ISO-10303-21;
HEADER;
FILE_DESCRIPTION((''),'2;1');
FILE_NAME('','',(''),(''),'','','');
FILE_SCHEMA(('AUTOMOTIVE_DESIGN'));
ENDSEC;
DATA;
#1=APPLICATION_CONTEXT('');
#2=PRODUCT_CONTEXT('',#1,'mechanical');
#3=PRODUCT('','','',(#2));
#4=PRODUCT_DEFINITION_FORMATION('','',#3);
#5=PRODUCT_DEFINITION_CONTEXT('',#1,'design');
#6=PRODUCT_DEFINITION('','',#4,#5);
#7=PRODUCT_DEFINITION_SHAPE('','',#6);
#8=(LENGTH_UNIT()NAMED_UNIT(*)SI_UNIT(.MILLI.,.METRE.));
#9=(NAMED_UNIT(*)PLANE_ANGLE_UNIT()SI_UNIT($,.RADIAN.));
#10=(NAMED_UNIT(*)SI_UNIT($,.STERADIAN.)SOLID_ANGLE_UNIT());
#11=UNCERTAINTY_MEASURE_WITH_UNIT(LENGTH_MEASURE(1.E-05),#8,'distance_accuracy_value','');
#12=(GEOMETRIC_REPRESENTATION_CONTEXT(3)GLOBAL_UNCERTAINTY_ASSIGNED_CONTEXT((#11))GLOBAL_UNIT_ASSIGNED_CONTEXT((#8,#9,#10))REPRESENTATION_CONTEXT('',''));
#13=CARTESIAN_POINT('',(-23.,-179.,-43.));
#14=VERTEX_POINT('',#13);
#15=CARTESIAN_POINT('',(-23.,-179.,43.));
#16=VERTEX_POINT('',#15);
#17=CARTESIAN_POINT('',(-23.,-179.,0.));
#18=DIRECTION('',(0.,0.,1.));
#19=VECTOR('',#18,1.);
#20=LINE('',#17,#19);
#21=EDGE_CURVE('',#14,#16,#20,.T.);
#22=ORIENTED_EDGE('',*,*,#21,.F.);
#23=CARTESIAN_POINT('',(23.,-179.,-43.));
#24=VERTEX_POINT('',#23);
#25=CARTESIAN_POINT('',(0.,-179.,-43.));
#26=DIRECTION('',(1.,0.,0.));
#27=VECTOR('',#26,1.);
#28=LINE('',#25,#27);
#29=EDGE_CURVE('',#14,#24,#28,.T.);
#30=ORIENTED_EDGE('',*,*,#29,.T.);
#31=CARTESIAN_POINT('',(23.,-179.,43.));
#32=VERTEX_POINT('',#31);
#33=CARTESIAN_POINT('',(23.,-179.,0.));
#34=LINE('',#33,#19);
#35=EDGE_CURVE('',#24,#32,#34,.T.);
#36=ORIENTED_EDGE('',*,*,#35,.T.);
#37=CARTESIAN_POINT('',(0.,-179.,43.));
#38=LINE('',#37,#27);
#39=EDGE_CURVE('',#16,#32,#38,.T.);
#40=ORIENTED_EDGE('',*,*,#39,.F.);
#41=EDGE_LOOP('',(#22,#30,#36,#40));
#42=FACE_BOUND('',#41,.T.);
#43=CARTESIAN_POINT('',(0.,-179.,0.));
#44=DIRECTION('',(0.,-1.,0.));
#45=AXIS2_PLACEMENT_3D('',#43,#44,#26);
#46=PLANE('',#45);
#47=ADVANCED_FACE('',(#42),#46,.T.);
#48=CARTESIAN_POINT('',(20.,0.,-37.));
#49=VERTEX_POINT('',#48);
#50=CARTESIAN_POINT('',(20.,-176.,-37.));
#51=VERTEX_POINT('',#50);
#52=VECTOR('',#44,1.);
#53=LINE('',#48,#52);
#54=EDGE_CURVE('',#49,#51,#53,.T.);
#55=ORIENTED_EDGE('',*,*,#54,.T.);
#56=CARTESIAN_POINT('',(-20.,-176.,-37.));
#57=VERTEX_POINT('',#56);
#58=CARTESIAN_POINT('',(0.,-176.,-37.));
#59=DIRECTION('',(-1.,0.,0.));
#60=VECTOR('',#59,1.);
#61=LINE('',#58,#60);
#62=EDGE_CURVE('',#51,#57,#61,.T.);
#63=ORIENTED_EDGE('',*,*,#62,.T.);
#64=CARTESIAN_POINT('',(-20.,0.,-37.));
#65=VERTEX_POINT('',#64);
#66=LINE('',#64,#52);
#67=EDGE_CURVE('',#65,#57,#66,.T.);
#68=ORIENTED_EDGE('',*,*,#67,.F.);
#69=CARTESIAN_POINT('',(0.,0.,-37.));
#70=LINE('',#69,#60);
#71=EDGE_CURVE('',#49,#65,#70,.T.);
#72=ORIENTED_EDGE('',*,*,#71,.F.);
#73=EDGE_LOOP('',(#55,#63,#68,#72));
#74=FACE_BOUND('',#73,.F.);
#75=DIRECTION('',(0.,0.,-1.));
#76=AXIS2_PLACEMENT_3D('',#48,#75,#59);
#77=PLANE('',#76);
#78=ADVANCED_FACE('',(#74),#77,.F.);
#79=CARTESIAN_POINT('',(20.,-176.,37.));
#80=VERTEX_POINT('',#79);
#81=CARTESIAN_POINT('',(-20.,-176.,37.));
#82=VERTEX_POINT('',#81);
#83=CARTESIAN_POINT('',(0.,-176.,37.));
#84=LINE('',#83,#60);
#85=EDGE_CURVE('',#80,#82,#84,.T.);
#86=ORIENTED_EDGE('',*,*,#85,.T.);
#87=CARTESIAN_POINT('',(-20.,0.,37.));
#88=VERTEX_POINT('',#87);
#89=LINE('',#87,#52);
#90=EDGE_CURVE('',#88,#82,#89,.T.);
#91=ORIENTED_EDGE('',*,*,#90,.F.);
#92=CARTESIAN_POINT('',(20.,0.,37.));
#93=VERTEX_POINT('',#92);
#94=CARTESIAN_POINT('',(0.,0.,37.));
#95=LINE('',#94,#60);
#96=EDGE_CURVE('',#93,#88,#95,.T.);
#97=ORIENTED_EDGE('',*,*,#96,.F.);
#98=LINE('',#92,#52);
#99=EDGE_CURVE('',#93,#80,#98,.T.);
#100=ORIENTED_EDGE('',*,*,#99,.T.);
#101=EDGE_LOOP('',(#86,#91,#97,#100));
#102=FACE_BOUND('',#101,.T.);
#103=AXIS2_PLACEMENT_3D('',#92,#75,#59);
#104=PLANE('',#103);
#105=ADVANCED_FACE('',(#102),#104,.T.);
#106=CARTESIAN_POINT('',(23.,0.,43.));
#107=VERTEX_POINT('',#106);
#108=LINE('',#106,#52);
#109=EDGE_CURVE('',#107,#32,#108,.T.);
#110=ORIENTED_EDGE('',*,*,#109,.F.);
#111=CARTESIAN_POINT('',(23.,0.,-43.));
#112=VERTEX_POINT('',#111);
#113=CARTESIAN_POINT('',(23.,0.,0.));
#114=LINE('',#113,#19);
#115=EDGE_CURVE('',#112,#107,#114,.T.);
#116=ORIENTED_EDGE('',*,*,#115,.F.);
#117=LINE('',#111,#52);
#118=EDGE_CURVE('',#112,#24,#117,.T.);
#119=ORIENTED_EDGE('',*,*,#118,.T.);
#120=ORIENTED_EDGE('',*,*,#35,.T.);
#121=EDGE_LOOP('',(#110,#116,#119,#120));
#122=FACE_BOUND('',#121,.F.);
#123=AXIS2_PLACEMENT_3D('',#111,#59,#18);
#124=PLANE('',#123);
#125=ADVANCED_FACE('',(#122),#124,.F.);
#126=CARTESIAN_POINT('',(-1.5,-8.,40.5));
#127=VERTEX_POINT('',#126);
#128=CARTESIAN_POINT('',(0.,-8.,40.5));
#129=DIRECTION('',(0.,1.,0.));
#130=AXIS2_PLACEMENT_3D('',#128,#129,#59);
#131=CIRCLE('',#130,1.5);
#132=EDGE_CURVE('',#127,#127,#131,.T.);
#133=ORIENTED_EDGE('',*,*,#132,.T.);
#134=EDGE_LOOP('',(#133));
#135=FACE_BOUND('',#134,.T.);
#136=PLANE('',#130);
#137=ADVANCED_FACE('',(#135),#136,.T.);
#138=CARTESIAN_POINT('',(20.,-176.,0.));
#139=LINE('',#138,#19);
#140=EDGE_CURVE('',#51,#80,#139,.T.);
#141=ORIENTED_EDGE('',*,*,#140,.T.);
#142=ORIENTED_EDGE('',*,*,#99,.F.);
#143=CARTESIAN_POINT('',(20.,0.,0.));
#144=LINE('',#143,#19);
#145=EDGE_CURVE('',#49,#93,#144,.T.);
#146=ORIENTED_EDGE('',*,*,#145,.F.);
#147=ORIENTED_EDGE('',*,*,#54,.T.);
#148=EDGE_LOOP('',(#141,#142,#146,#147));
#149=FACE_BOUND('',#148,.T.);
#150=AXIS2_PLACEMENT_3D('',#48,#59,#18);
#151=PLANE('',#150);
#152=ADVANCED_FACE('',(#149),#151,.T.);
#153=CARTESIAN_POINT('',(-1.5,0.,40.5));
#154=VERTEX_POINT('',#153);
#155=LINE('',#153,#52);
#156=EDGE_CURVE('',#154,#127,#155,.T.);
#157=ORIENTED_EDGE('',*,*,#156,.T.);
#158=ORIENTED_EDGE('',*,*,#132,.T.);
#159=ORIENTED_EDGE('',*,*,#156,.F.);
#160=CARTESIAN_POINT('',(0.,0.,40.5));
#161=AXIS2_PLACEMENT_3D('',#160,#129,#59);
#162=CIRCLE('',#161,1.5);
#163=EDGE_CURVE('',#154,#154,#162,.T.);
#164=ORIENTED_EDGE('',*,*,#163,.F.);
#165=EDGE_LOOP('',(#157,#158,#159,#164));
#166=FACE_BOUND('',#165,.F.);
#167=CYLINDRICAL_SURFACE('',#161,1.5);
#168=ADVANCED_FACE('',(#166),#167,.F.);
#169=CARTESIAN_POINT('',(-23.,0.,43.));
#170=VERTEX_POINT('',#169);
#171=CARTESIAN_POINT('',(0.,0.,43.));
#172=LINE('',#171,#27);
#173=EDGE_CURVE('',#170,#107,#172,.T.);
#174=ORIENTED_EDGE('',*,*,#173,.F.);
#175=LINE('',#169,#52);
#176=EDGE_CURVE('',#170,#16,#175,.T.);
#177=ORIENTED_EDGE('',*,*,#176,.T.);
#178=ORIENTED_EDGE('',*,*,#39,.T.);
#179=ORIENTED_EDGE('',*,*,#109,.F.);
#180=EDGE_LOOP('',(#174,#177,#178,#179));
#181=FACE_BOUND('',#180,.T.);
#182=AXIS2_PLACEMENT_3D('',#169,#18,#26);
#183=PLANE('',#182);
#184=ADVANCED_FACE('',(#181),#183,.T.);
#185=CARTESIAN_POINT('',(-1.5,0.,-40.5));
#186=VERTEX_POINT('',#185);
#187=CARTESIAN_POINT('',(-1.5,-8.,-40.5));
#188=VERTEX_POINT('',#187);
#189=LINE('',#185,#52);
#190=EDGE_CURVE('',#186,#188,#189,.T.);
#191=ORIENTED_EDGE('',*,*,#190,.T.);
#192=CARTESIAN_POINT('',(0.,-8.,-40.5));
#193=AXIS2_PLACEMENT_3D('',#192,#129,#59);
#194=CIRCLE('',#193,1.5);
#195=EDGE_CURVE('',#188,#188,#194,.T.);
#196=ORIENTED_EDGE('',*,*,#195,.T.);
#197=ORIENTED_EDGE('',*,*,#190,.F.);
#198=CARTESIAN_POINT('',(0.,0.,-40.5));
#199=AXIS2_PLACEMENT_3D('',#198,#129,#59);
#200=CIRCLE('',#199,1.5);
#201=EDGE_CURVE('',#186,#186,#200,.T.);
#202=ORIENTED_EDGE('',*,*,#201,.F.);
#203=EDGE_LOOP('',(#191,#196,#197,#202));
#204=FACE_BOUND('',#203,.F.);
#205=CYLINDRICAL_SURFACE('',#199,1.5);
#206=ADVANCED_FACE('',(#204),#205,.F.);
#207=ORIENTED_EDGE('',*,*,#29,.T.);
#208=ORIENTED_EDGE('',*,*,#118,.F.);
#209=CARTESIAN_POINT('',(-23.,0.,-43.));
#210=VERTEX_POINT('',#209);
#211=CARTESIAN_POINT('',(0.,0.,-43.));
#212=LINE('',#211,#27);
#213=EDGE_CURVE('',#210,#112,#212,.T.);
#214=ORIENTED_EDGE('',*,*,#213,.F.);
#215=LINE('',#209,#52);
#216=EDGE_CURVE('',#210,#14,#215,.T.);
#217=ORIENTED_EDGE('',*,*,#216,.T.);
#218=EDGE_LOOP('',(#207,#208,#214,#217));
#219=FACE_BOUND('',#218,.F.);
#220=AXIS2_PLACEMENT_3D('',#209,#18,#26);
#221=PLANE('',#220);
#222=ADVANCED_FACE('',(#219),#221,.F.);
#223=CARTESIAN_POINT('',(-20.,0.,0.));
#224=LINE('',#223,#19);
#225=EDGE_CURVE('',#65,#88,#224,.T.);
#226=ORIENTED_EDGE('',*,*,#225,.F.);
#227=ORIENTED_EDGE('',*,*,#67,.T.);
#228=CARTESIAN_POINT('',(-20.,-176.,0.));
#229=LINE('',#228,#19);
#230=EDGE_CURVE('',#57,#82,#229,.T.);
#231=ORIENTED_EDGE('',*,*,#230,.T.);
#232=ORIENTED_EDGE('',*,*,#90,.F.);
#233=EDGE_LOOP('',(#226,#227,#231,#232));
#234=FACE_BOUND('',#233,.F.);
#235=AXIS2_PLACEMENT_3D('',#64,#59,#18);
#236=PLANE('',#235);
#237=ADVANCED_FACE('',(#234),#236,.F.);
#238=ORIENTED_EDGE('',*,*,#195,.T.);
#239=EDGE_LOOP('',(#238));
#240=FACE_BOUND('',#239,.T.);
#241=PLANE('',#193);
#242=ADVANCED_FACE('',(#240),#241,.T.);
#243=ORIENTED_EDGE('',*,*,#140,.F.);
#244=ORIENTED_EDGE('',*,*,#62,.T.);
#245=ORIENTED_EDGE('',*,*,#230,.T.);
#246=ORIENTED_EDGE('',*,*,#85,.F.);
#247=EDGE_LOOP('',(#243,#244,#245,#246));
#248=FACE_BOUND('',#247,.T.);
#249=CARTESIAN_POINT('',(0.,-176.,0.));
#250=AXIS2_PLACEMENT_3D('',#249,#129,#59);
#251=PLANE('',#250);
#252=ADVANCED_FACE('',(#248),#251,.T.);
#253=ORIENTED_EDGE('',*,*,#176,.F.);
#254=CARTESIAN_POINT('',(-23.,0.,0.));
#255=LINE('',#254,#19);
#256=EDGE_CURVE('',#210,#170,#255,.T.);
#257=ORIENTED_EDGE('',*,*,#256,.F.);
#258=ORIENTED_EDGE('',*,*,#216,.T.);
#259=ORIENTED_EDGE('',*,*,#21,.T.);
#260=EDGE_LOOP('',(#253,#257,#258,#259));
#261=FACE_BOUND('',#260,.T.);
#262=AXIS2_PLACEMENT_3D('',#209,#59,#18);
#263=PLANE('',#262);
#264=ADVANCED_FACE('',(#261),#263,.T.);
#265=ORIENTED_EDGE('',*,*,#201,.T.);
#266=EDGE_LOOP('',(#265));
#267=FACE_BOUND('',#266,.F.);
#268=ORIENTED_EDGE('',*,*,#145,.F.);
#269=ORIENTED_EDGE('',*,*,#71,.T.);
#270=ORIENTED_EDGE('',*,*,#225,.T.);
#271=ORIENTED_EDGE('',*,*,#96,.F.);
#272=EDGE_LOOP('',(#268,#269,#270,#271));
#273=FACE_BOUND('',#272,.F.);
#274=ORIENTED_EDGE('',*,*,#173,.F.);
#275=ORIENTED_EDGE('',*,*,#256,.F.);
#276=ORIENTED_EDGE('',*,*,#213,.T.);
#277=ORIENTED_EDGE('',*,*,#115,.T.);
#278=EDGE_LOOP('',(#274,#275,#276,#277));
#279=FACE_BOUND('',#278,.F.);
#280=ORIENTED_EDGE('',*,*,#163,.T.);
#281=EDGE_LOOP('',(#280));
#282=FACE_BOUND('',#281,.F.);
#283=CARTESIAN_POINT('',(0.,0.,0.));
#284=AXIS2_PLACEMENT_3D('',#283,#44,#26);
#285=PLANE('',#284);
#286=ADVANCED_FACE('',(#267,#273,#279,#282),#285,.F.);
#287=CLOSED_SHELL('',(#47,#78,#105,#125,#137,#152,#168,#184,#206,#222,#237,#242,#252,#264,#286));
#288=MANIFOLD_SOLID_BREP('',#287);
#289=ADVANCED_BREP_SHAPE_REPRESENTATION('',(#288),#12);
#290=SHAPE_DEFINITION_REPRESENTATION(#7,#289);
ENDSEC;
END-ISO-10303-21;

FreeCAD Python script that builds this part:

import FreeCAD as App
import Part
import Sketcher
from FreeCAD import Vector
Q = App.Units.Quantity


def add_polygon(sketch, points):
    """Adds a closed chain of lines whose ends are joined by coincident constraints."""
    first, n = sketch.GeometryCount, len(points)
    for a, b in zip(points, points[1:] + points[:1]):
        sketch.addGeometry(Part.LineSegment(App.Vector(*a, 0), App.Vector(*b, 0)), False)
    for i in range(n):
        sketch.addConstraint(Sketcher.Constraint("Coincident", first + i, 2, first + (i + 1) % n, 1))

doc = App.newDocument("Part")
body = doc.addObject("PartDesign::Body", "Body")

# Sketch on XZ plane
sketch1 = body.newObject("Sketcher::SketchObject", "Sketch")
sketch1.AttachmentSupport = (doc.getObject("XZ_Plane"), [""])
sketch1.MapMode = "FlatFace"
add_polygon(sketch1, [(-23, 43), (-23, -43), (23, -43), (23, 43)])  # lines 0-3
sketch1.addConstraint([
    Sketcher.Constraint("Vertical", 0),
    Sketcher.Constraint("Horizontal", 1),
    Sketcher.Constraint("Vertical", 2),
    Sketcher.Constraint("Horizontal", 3),
    Sketcher.Constraint("Symmetric", 0, 2, 2, 2, -1, 1),
    Sketcher.Constraint("DistanceX", 1, 1, 1, 2, Q("46 mm")),
    Sketcher.Constraint("DistanceY", 0, 2, 0, 1, Q("86 mm")),
])
pad1 = body.newObject("PartDesign::Pad", "Pad")
pad1.Profile = sketch1
pad1.Length = 179

# Sketch on XZ plane
sketch2 = body.newObject("Sketcher::SketchObject", "Sketch001")
sketch2.AttachmentSupport = (doc.getObject("XZ_Plane"), [""])
sketch2.MapMode = "FlatFace"
add_polygon(sketch2, [(20, 37), (20, -37), (-20, -37), (-20, 37)])  # lines 0-3
sketch2.addConstraint([
    Sketcher.Constraint("Vertical", 0),
    Sketcher.Constraint("Horizontal", 1),
    Sketcher.Constraint("Vertical", 2),
    Sketcher.Constraint("Horizontal", 3),
    Sketcher.Constraint("Symmetric", 0, 2, 2, 2, -1, 1),
    Sketcher.Constraint("DistanceX", 1, 2, 1, 1, Q("40 mm")),
    Sketcher.Constraint("DistanceY", 0, 2, 0, 1, Q("74 mm")),
])
pocket1 = body.newObject("PartDesign::Pocket", "Pocket")
pocket1.Profile = sketch2
pocket1.Length = 176
pocket1.Reversed = True

# Sketch on XZ plane
sketch3 = body.newObject("Sketcher::SketchObject", "Sketch002")
sketch3.AttachmentSupport = (doc.getObject("XZ_Plane"), [""])
sketch3.MapMode = "FlatFace"
sketch3.addGeometry([
    Part.Circle(Vector(0, 40.5, 0), Vector(0, 0, 1), 1.5),
    Part.Circle(Vector(0, -40.5, 0), Vector(0, 0, 1), 1.5),
], False)
sketch3.addConstraint([
    Sketcher.Constraint("Equal", 0, 1),
    Sketcher.Constraint("Symmetric", 0, 3, 1, 3, -1, 1),
    Sketcher.Constraint("PointOnObject", 0, 3, -2),
    Sketcher.Constraint("Diameter", 0, Q("3 mm")),
    Sketcher.Constraint("DistanceY", 1, 3, 0, 3, Q("81 mm")),
])
pocket2 = body.newObject("PartDesign::Pocket", "Pocket001")
pocket2.Profile = sketch3
pocket2.Length = 8
pocket2.Reversed = True

doc.recompute()
